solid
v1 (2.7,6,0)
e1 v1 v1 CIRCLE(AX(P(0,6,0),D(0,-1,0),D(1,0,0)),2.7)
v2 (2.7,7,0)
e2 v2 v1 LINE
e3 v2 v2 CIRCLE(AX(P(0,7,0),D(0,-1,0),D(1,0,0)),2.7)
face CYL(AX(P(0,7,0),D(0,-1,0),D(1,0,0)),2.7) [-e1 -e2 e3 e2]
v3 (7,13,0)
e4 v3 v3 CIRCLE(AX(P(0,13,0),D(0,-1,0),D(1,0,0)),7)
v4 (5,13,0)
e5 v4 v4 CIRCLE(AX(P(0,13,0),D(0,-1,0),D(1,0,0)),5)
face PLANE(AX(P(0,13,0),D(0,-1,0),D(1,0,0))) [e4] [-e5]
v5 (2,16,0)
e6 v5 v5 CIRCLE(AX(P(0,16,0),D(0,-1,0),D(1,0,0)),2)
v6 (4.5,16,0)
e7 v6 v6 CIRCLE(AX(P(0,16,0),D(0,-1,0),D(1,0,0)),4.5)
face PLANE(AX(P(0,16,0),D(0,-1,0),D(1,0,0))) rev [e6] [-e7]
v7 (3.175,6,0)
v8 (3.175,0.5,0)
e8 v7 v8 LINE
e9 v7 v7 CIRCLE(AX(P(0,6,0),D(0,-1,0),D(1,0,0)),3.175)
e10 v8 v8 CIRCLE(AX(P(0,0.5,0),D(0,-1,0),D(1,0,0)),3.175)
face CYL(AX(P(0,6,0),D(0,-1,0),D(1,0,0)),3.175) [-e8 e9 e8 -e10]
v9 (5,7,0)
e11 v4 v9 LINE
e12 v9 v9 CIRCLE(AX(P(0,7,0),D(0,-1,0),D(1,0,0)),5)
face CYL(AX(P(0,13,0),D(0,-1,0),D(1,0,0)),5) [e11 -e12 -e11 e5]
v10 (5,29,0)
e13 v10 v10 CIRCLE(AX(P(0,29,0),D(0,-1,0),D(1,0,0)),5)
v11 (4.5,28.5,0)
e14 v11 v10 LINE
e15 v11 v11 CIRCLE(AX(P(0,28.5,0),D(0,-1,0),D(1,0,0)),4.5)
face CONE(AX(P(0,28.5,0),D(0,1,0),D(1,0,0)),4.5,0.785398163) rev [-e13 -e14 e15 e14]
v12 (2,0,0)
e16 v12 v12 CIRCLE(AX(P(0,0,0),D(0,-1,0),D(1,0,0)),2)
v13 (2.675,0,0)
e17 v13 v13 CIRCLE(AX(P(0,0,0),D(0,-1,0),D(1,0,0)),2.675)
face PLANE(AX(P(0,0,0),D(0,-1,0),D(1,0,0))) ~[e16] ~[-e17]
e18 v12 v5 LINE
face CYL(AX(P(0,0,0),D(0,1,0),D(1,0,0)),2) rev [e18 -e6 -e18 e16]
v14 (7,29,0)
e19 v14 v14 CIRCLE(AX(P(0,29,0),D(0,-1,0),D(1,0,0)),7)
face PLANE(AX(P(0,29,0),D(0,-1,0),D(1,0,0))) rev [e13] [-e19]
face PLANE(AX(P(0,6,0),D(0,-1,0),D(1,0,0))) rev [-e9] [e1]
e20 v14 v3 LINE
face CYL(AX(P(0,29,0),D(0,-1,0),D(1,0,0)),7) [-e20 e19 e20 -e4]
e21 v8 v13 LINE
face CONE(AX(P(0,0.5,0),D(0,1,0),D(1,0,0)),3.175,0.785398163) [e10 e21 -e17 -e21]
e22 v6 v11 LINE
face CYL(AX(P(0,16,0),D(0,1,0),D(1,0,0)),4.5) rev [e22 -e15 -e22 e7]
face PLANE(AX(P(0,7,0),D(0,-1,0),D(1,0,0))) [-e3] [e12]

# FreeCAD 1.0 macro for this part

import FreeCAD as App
import Part
import Sketcher

V = App.Vector


def edges_at(feature, points):
    """Names of the edges that pass closest to the given points."""
    edges = feature.Shape.Edges
    near = lambda p: min(range(len(edges)), key=lambda i: edges[i].distToShape(Part.Vertex(*p))[0])
    return sorted({f"Edge{near(p) + 1}" for p in points})

doc = App.newDocument("Part")
params = doc.addObject("Spreadsheet::Sheet", "Params")
for row, (alias, value) in enumerate([
    ("sketch1_width", "2 mm"),
    ("sketch1_height", "6 mm"),
    ("sketch1_height2", "1 mm"),
    ("revolution_angle", "360 deg"),
    ("chamfer_size", "0.5 mm"),
], start=1):
    params.set(f"A{row}", alias)
    params.set(f"B{row}", "=" + value)
    params.setAlias(f"B{row}", alias)

body = doc.addObject("PartDesign::Body", "Body")

# Sketch on XY plane
sketch1 = body.newObject("Sketcher::SketchObject", "Sketch")
sketch1.AttachmentSupport = (doc.getObject("XY_Plane"), [""])
sketch1.MapMode = "FlatFace"
sketch1.addGeometry(Part.LineSegment(V(2, 16, 0), V(2, 0, 0)), False)
sketch1.addGeometry(Part.LineSegment(V(2, 0, 0), V(3.175, 0, 0)), False)
sketch1.addGeometry(Part.LineSegment(V(3.175, 0, 0), V(3.175, 6, 0)), False)
sketch1.addGeometry(Part.LineSegment(V(3.175, 6, 0), V(2.7, 6, 0)), False)
sketch1.addGeometry(Part.LineSegment(V(2.7, 6, 0), V(2.7, 7, 0)), False)
sketch1.addGeometry(Part.LineSegment(V(2.7, 7, 0), V(5, 7, 0)), False)
sketch1.addGeometry(Part.LineSegment(V(5, 7, 0), V(5, 13, 0)), False)
sketch1.addGeometry(Part.LineSegment(V(5, 13, 0), V(7, 13, 0)), False)
sketch1.addGeometry(Part.LineSegment(V(7, 13, 0), V(7, 29, 0)), False)
sketch1.addGeometry(Part.LineSegment(V(7, 29, 0), V(4.5, 29, 0)), False)
sketch1.addGeometry(Part.LineSegment(V(4.5, 29, 0), V(4.5, 16, 0)), False)
sketch1.addGeometry(Part.LineSegment(V(4.5, 16, 0), V(2, 16, 0)), False)
sketch1.addConstraint(Sketcher.Constraint("Coincident", 0, 2, 1, 1))
sketch1.addConstraint(Sketcher.Constraint("Coincident", 1, 2, 2, 1))
sketch1.addConstraint(Sketcher.Constraint("Coincident", 2, 2, 3, 1))
sketch1.addConstraint(Sketcher.Constraint("Coincident", 3, 2, 4, 1))
sketch1.addConstraint(Sketcher.Constraint("Coincident", 4, 2, 5, 1))
sketch1.addConstraint(Sketcher.Constraint("Coincident", 5, 2, 6, 1))
sketch1.addConstraint(Sketcher.Constraint("Coincident", 6, 2, 7, 1))
sketch1.addConstraint(Sketcher.Constraint("Coincident", 7, 2, 8, 1))
sketch1.addConstraint(Sketcher.Constraint("Coincident", 8, 2, 9, 1))
sketch1.addConstraint(Sketcher.Constraint("Coincident", 9, 2, 10, 1))
sketch1.addConstraint(Sketcher.Constraint("Coincident", 10, 2, 11, 1))
sketch1.addConstraint(Sketcher.Constraint("Coincident", 11, 2, 0, 1))
sketch1.addConstraint(Sketcher.Constraint("Vertical", 0))
sketch1.addConstraint(Sketcher.Constraint("Horizontal", 1))
sketch1.addConstraint(Sketcher.Constraint("Vertical", 2))
sketch1.addConstraint(Sketcher.Constraint("Horizontal", 3))
sketch1.addConstraint(Sketcher.Constraint("Vertical", 4))
sketch1.addConstraint(Sketcher.Constraint("Horizontal", 5))
sketch1.addConstraint(Sketcher.Constraint("Vertical", 6))
sketch1.addConstraint(Sketcher.Constraint("Horizontal", 7))
sketch1.addConstraint(Sketcher.Constraint("Vertical", 8))
sketch1.addConstraint(Sketcher.Constraint("Horizontal", 9))
sketch1.addConstraint(Sketcher.Constraint("Vertical", 10))
sketch1.addConstraint(Sketcher.Constraint("Horizontal", 11))
sketch1.addConstraint(Sketcher.Constraint("PointOnObject", 0, 2, -1))
sketch1.addConstraint(Sketcher.Constraint("Equal", 9, 11))
sketch1.addConstraint(Sketcher.Constraint("Equal", 2, 6))
sketch1.addConstraint(Sketcher.Constraint("Equal", 0, 8))
sketch1.addConstraint(Sketcher.Constraint("DistanceX", 7, 1, 7, 2, 2.0))
sketch1.addConstraint(Sketcher.Constraint("DistanceY", 2, 1, 2, 2, 6.0))
sketch1.addConstraint(Sketcher.Constraint("DistanceY", 4, 1, 4, 2, 1.0))
sketch1.addConstraint(Sketcher.Constraint("DistanceX", -1, 1, 0, 2, 2.0))
sketch1.addConstraint(Sketcher.Constraint("DistanceX", -1, 1, 5, 2, 5.0))
sketch1.addConstraint(Sketcher.Constraint("DistanceY", 6, 2, 10, 2, 3.0))
sketch1.addConstraint(Sketcher.Constraint("DistanceX", -1, 1, 3, 2, 2.7))
sketch1.addConstraint(Sketcher.Constraint("DistanceX", -1, 1, 1, 2, 3.175))
sketch1.setExpression("Constraints[28]", "Params.sketch1_width")
sketch1.setExpression("Constraints[29]", "Params.sketch1_height")
sketch1.setExpression("Constraints[30]", "Params.sketch1_height2")
revolution = body.newObject("PartDesign::Revolution", "Revolution")
revolution.Profile = sketch1
revolution.ReferenceAxis = (sketch1, ["V_Axis"])
revolution.setExpression("Angle", "Params.revolution_angle")
doc.recompute()

chamfer = body.newObject("PartDesign::Chamfer", "Chamfer")
chamfer.Base = (revolution, edges_at(revolution, [(-3.175, 0, 0), (-4.5, 29, 0)]))
chamfer.setExpression("Size", "Params.chamfer_size")

doc.recompute()
